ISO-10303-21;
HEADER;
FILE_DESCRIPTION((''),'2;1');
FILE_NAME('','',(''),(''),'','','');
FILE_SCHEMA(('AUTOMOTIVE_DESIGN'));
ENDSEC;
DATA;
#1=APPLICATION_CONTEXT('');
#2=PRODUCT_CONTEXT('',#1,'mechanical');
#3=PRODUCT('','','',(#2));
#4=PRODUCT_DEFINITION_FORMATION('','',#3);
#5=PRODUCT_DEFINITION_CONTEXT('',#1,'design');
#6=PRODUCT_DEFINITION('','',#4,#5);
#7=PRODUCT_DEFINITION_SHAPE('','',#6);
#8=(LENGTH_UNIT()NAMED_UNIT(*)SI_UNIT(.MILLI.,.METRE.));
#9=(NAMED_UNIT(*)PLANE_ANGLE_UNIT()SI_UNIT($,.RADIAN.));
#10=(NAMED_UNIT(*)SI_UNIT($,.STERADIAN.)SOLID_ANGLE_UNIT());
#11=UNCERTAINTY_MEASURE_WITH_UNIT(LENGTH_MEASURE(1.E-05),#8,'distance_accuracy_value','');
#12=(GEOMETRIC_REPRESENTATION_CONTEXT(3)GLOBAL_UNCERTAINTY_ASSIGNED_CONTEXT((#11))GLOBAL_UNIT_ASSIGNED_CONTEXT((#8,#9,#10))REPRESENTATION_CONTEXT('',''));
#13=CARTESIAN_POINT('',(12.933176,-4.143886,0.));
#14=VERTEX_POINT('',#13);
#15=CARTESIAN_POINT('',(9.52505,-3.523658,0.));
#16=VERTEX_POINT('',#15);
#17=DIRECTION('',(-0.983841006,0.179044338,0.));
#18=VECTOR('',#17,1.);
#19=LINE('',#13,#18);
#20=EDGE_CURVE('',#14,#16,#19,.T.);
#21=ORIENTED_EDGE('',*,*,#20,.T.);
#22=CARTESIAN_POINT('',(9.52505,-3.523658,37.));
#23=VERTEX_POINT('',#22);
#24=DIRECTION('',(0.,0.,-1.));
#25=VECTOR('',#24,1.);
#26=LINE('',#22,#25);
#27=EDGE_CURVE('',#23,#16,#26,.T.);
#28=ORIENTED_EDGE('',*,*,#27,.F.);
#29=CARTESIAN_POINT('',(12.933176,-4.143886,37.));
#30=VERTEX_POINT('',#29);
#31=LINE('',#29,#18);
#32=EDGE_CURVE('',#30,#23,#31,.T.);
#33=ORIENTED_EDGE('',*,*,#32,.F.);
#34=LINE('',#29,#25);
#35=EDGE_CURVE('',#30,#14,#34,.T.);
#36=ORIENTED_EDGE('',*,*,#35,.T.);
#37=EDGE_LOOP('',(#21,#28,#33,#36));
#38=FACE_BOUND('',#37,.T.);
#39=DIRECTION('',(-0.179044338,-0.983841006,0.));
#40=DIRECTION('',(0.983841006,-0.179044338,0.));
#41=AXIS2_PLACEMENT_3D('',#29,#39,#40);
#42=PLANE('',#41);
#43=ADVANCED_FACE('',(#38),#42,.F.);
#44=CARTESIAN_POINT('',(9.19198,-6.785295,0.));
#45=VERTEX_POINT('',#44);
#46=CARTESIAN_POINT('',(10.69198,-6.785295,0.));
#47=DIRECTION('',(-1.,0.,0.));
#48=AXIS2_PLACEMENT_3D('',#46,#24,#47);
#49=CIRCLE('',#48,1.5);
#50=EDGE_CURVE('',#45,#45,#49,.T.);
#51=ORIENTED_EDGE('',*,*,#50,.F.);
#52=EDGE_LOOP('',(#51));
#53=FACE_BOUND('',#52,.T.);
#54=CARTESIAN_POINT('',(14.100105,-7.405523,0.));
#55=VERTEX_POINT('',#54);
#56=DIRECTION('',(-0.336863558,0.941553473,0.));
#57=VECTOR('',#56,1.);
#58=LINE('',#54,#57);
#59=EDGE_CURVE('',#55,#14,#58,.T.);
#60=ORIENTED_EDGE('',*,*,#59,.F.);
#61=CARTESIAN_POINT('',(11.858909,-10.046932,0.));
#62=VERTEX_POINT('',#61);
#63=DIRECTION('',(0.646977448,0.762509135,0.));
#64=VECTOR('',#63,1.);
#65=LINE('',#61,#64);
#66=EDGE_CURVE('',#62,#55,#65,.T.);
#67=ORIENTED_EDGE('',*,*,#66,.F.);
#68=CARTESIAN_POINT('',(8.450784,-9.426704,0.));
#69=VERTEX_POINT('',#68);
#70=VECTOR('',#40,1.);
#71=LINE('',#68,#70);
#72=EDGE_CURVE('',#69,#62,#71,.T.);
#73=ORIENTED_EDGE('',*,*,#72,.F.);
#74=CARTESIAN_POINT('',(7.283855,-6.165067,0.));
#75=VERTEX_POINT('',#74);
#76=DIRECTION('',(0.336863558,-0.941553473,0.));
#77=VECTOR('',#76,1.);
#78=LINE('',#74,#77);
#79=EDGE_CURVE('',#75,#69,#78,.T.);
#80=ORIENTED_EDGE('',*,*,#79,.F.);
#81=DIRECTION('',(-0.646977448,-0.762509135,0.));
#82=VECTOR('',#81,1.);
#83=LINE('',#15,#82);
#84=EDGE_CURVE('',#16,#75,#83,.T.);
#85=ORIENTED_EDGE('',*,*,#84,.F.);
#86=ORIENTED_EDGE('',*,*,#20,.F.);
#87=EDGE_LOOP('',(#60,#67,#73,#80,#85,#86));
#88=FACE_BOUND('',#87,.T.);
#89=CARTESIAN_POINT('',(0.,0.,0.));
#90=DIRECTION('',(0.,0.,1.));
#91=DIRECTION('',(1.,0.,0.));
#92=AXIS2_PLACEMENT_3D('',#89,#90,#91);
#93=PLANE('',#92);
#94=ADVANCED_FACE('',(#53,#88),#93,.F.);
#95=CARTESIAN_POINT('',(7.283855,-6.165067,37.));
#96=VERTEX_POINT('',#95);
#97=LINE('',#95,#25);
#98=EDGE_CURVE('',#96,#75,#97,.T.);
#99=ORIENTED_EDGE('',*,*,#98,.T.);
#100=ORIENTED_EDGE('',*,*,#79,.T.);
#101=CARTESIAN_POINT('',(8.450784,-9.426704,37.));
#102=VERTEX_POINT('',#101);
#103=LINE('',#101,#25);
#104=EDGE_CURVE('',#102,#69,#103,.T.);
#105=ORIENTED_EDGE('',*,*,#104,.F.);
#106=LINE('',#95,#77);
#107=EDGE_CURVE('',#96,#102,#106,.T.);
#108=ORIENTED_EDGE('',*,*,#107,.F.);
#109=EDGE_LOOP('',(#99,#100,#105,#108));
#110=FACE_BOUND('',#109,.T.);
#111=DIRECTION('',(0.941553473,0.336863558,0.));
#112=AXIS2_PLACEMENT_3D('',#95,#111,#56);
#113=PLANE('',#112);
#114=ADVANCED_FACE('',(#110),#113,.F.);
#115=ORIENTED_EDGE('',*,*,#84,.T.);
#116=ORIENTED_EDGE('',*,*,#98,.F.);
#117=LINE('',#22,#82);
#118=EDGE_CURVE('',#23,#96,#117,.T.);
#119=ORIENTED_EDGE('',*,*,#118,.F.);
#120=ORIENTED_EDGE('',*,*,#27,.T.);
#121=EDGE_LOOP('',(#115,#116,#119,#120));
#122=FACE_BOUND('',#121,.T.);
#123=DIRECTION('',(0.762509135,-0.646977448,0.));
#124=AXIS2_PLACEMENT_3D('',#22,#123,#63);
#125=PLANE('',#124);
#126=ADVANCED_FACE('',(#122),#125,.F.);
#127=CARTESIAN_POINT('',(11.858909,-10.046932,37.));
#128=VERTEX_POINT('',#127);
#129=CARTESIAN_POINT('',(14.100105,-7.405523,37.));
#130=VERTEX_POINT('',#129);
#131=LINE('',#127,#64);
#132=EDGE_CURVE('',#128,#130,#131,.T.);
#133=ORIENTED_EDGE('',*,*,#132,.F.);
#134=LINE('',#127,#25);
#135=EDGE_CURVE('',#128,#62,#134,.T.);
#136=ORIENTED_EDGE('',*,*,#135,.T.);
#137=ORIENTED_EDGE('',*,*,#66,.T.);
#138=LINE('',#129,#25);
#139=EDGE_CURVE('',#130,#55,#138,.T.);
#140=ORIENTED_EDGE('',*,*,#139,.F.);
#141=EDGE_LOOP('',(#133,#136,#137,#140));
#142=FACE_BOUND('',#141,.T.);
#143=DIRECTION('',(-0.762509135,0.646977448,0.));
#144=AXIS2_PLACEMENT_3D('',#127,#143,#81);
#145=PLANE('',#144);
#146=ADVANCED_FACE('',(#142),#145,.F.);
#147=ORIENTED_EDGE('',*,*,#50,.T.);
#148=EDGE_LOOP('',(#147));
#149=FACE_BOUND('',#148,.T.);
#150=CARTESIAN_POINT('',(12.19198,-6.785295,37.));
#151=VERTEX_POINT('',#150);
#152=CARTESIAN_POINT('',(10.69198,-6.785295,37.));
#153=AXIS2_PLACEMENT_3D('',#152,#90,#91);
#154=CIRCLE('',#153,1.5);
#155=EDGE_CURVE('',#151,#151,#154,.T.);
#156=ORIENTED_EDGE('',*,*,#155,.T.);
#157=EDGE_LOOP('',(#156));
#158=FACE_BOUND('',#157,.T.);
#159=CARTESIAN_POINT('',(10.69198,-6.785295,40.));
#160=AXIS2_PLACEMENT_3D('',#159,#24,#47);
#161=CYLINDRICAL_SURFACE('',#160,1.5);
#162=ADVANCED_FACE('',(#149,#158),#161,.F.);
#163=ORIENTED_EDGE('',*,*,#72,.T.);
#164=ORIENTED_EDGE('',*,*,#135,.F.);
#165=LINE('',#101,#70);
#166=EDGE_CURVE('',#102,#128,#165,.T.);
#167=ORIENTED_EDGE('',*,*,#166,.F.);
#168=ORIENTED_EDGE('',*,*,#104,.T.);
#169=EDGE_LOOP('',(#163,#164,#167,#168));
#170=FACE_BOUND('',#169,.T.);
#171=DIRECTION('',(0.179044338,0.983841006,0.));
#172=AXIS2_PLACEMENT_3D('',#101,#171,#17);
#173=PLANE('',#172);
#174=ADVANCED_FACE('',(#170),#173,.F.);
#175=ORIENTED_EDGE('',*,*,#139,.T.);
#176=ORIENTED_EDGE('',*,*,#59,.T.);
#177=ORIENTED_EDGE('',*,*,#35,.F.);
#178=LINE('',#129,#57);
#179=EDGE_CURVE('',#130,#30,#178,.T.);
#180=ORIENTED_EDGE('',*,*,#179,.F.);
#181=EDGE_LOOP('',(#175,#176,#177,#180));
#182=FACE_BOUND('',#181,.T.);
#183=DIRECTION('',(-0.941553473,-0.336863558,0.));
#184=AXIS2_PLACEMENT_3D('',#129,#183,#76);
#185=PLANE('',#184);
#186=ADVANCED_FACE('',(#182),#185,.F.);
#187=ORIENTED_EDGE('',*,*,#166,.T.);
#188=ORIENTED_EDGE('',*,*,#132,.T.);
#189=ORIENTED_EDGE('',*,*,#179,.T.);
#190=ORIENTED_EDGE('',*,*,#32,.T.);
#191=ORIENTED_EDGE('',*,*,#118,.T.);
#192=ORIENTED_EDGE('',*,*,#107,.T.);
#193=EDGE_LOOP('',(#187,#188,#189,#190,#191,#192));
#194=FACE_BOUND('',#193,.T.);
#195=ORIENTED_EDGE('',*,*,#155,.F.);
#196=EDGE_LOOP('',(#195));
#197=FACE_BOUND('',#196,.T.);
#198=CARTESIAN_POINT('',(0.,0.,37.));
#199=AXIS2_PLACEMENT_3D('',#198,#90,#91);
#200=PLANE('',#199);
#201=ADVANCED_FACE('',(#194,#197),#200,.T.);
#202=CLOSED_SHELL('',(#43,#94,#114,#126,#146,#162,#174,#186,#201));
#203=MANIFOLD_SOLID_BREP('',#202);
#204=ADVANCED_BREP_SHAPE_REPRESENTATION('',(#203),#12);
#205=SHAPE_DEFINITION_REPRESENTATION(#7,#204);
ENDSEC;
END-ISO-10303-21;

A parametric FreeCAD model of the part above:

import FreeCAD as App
import Part
import Sketcher

V = App.Vector


def add_polygon(sketch, points):
    """Adds a closed chain of lines whose ends are joined by coincident constraints."""
    first, n = sketch.GeometryCount, len(points)
    for a, b in zip(points, points[1:] + points[:1]):
        sketch.addGeometry(Part.LineSegment(App.Vector(*a, 0), App.Vector(*b, 0)), False)
    for i in range(n):
        sketch.addConstraint(Sketcher.Constraint("Coincident", first + i, 2, first + (i + 1) % n, 1))

doc = App.newDocument("Part")
params = doc.addObject("Spreadsheet::Sheet", "Params")
for row, (alias, value) in enumerate([
    ("pad1_length", "37 mm"),
    ("sketch2_diameter", "3 mm"),
    ("pocket1_length", "40 mm"),
], start=1):
    params.set(f"A{row}", alias)
    params.set(f"B{row}", "=" + value)
    params.setAlias(f"B{row}", alias)

body = doc.addObject("PartDesign::Body", "Body")

# Sketch on XY plane
sketch1 = body.newObject("Sketcher::SketchObject", "Sketch")
sketch1.AttachmentSupport = (doc.getObject("XY_Plane"), [""])
sketch1.MapMode = "FlatFace"
add_polygon(sketch1, [(12.9, -4.1), (9.5, -3.5), (7.3, -6.2), (8.5, -9.4), (11.9, -10), (14.1, -7.4)])  # lines 0-5
sketch1.addConstraint([
    Sketcher.Constraint("Parallel", 0, 3),
    Sketcher.Constraint("Parallel", 1, 4),
    Sketcher.Constraint("Parallel", 2, 5),
    Sketcher.Constraint("Equal", 0, 1),
    Sketcher.Constraint("Equal", 1, 2),
    Sketcher.Constraint("Equal", 2, 3),
    Sketcher.Constraint("Distance", 0, 3.464102),
    Sketcher.Constraint("DistanceX", -1, 1, 0, 2, 9.52505),
    Sketcher.Constraint("DistanceY", 0, 2, -1, 1, 3.523658),
    Sketcher.Constraint("DistanceX", -1, 1, 3, 2, 11.858909),
    Sketcher.Constraint("DistanceY", 3, 2, -1, 1, 10.046932),
    Sketcher.Constraint("DistanceY", 1, 2, 0, 2, 2.641409),
])
pad1 = body.newObject("PartDesign::Pad", "Pad")
pad1.Profile = sketch1
pad1.setExpression("Length", "Params.pad1_length")

# Sketch on XY plane
sketch2 = body.newObject("Sketcher::SketchObject", "Sketch001")
sketch2.AttachmentSupport = (doc.getObject("XY_Plane"), [""])
sketch2.MapMode = "FlatFace"
sketch2.addGeometry(Part.Circle(V(10.7, -6.8, 0), V(0, 0, 1), 1.5), False)
sketch2.addConstraint([
    Sketcher.Constraint("Diameter", 0, 3.0),
    Sketcher.Constraint("DistanceX", -1, 1, 0, 3, 10.69198),
    Sketcher.Constraint("DistanceY", 0, 3, -1, 1, 6.785295),
])
sketch2.setExpression("Constraints[0]", "Params.sketch2_diameter")
pocket1 = body.newObject("PartDesign::Pocket", "Pocket")
pocket1.Profile = sketch2
pocket1.setExpression("Length", "Params.pocket1_length")
pocket1.Reversed = True

doc.recompute()
